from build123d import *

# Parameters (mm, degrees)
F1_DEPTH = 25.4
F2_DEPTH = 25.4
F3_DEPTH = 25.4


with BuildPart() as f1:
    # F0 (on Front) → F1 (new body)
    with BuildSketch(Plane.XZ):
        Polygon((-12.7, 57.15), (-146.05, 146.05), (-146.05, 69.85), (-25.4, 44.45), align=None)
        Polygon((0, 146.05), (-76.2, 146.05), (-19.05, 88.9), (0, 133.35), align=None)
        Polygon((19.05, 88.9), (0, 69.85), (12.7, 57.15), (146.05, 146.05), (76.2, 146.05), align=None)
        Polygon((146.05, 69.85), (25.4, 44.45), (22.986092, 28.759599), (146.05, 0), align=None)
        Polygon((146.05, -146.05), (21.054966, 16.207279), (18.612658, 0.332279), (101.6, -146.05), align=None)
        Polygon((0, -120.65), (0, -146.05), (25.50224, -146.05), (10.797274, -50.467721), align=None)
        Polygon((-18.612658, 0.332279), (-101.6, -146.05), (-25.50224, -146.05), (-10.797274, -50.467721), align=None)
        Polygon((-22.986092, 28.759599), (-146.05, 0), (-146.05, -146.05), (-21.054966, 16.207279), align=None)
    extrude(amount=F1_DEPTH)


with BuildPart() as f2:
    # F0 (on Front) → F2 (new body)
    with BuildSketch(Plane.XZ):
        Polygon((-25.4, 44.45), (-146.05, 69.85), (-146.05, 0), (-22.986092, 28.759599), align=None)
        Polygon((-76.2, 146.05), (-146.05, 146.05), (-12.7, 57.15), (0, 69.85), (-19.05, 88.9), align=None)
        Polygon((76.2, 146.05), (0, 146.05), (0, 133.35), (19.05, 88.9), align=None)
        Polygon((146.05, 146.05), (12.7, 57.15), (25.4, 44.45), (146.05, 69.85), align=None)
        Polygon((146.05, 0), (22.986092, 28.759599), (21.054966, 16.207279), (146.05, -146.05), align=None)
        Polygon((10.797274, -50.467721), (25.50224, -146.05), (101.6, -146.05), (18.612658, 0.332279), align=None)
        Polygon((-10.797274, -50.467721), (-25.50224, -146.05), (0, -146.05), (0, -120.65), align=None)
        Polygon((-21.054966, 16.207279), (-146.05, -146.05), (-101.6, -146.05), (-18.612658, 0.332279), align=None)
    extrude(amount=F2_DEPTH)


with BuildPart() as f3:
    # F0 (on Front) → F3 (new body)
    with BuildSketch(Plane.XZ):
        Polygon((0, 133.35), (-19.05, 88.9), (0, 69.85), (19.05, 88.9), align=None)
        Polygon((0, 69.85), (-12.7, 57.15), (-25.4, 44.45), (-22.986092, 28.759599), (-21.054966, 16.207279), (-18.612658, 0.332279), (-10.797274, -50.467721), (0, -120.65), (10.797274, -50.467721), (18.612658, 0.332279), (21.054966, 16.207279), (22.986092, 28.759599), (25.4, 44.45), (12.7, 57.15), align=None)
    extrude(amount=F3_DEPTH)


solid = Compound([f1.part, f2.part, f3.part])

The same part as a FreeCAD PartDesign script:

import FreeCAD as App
import Part
import Sketcher
from FreeCAD import Vector
Q = App.Units.Quantity


def add_polygon(sketch, points):
    """Adds a closed chain of lines whose ends are joined by coincident constraints."""
    first, n = sketch.GeometryCount, len(points)
    for a, b in zip(points, points[1:] + points[:1]):
        sketch.addGeometry(Part.LineSegment(App.Vector(*a, 0), App.Vector(*b, 0)), False)
    for i in range(n):
        sketch.addConstraint(Sketcher.Constraint("Coincident", first + i, 2, first + (i + 1) % n, 1))

doc = App.newDocument("Part")
body = doc.addObject("PartDesign::Body", "Body")
body.AllowCompound = True

sketch1 = body.newObject("Sketcher::SketchObject", "Sketch")
sketch1.AttachmentSupport = (doc.getObject("XZ_Plane"), [""])
sketch1.MapMode = "FlatFace"
add_polygon(sketch1, [(-13, 57), (-146, 146), (-146, 70), (-25, 44)])
add_polygon(sketch1, [(0, 146), (-76, 146), (-19, 89), (0, 133)])
add_polygon(sketch1, [(0, 70), (13, 57), (146, 146), (76, 146)])
add_polygon(sketch1, [(146, 70), (25, 44), (23, 29), (146, 0)])
add_polygon(sketch1, [(146, -146), (21, 16), (19, 0), (102, -146)])
add_polygon(sketch1, [(0, -121), (0, -146), (26, -146), (11, -50)])
add_polygon(sketch1, [(-19, 0), (-102, -146), (-26, -146), (-11, -50)])
add_polygon(sketch1, [(-23, 29), (-146, 0), (-146, -146), (-21, 16)])
sketch1.addConstraint(Sketcher.Constraint("Vertical", 1))
sketch1.addConstraint(Sketcher.Constraint("Horizontal", 4))
sketch1.addConstraint(Sketcher.Constraint("Vertical", 7))
sketch1.addConstraint(Sketcher.Constraint("Horizontal", 10))
sketch1.addConstraint(Sketcher.Constraint("Vertical", 15))
sketch1.addConstraint(Sketcher.Constraint("Horizontal", 19))
sketch1.addConstraint(Sketcher.Constraint("Vertical", 20))
sketch1.addConstraint(Sketcher.Constraint("Horizontal", 21))
sketch1.addConstraint(Sketcher.Constraint("Horizontal", 25))
sketch1.addConstraint(Sketcher.Constraint("Vertical", 29))
sketch1.addConstraint(Sketcher.Constraint("Symmetric", 0, 2, 19, 2, -1, 1))
sketch1.addConstraint(Sketcher.Constraint("Symmetric", 7, 2, 20, 2, -1, 1))
sketch1.addConstraint(Sketcher.Constraint("Symmetric", 14, 2, 28, 2, -1, 1))
sketch1.addConstraint(Sketcher.Constraint("Symmetric", 9, 2, 29, 2, -1, 1))
sketch1.addConstraint(Sketcher.Constraint("Symmetric", 3, 2, 8, 2, -2))
sketch1.addConstraint(Sketcher.Constraint("Symmetric", 0, 2, 9, 2, -2))
sketch1.addConstraint(Sketcher.Constraint("Symmetric", 4, 2, 10, 2, -2))
sketch1.addConstraint(Sketcher.Constraint("Symmetric", 2, 2, 12, 2, -2))
sketch1.addConstraint(Sketcher.Constraint("Symmetric", 18, 2, 24, 2, -2))
sketch1.addConstraint(Sketcher.Constraint("Symmetric", 22, 2, 26, 2, -2))
sketch1.addConstraint(Sketcher.Constraint("Symmetric", 17, 2, 27, 2, -2))
sketch1.addConstraint(Sketcher.Constraint("Symmetric", 16, 2, 30, 2, -2))
sketch1.addConstraint(Sketcher.Constraint("Symmetric", 13, 2, 31, 2, -2))
sketch1.addConstraint(Sketcher.Constraint("PointOnObject", 6, 2, -2))
sketch1.addConstraint(Sketcher.Constraint("PointOnObject", 11, 2, -2))
sketch1.addConstraint(Sketcher.Constraint("PointOnObject", 14, 2, -1))
sketch1.addConstraint(Sketcher.Constraint("Perpendicular", 3, 5))
sketch1.addConstraint(Sketcher.Constraint("Parallel", 5, 8))
sketch1.addConstraint(Sketcher.Constraint("Perpendicular", 8, 11))
sketch1.addConstraint(Sketcher.Constraint("Parallel", 13, 17))
sketch1.addConstraint(Sketcher.Constraint("Parallel", 17, 23))
sketch1.addConstraint(Sketcher.Constraint("Parallel", 23, 26))
sketch1.addConstraint(Sketcher.Constraint("Parallel", 22, 27))
sketch1.addConstraint(Sketcher.Constraint("Parallel", 27, 31))
sketch1.addConstraint(Sketcher.Constraint("Horizontal", 1, 2, 11, 2))
sketch1.addConstraint(Sketcher.Constraint("Horizontal", 11, 2, 15, 2))
sketch1.addConstraint(Sketcher.Constraint("Equal", 4, 1))
sketch1.addConstraint(Sketcher.Constraint("Equal", 10, 15))
sketch1.addConstraint(Sketcher.Constraint("Equal", 3, 8))
sketch1.addConstraint(Sketcher.Constraint("Equal", 22, 26))
sketch1.addConstraint(Sketcher.Constraint("DistanceX", 4, 2, 4, 1, Q("3 in")))
sketch1.addConstraint(Sketcher.Constraint("DistanceY", 20, 2, 20, 1, Q("1 in")))
sketch1.addConstraint(Sketcher.Constraint("DistanceY", 7, 1, 7, 2, Q("0.5 in")))
sketch1.addConstraint(Sketcher.Constraint("DistanceX", 2, 2, -1, 1, Q("1 in")))
sketch1.addConstraint(Sketcher.Constraint("DistanceX", -1, 1, 18, 2, Q("4 in")))
sketch1.addConstraint(Sketcher.Constraint("DistanceX", 1, 2, 5, 2, Q("5 in")))
sketch1.addConstraint(Sketcher.Constraint("DistanceY", 22, 2, 17, 2, Q("2 in")))
sketch1.addConstraint(Sketcher.Constraint("Distance", 31, Q("0.5 in")))
sketch1.addConstraint(Sketcher.Constraint("DistanceX", 10, 2, 10, 1, Q("2.75 in")))
sketch1.addConstraint(Sketcher.Constraint("Distance", 13, Q("0.625 in")))
sketch1.addConstraint(Sketcher.Constraint("DistanceY", 17, 2, 16, 2, Q("0.625 in")))
pad1 = body.newObject("PartDesign::Pad", "Pad")
pad1.Profile = sketch1
pad1.Length = Q("1 in")
body2 = doc.addObject("PartDesign::Body", "Body001")
body2.AllowCompound = True

sketch2 = body2.newObject("Sketcher::SketchObject", "Sketch001")
sketch2.AttachmentSupport = (doc.getObject("XZ_Plane001"), [""])
sketch2.MapMode = "FlatFace"
add_polygon(sketch2, [(-25, 44), (-146, 70), (-146, 0), (-23, 29)])
add_polygon(sketch2, [(-76, 146), (-146, 146), (-13, 57), (0, 70)])
add_polygon(sketch2, [(76, 146), (0, 146), (0, 133), (19, 89)])
add_polygon(sketch2, [(146, 146), (13, 57), (25, 44), (146, 70)])
add_polygon(sketch2, [(146, 0), (23, 29), (21, 16), (146, -146)])
add_polygon(sketch2, [(11, -50), (26, -146), (102, -146), (19, 0)])
add_polygon(sketch2, [(-11, -50), (-26, -146), (0, -146), (0, -121)])
add_polygon(sketch2, [(-21, 16), (-146, -146), (-102, -146), (-19, 0)])
sketch2.addConstraint(Sketcher.Constraint("Vertical", 1))
sketch2.addConstraint(Sketcher.Constraint("Horizontal", 4))
sketch2.addConstraint(Sketcher.Constraint("Horizontal", 8))
sketch2.addConstraint(Sketcher.Constraint("Vertical", 9))
sketch2.addConstraint(Sketcher.Constraint("Vertical", 15))
sketch2.addConstraint(Sketcher.Constraint("Vertical", 19))
sketch2.addConstraint(Sketcher.Constraint("Horizontal", 21))
sketch2.addConstraint(Sketcher.Constraint("Horizontal", 25))
sketch2.addConstraint(Sketcher.Constraint("Vertical", 26))
sketch2.addConstraint(Sketcher.Constraint("Horizontal", 29))
sketch2.addConstraint(Sketcher.Constraint("Symmetric", 4, 2, 18, 2, -1, 1))
sketch2.addConstraint(Sketcher.Constraint("Symmetric", 1, 2, 19, 2, -1, 1))
sketch2.addConstraint(Sketcher.Constraint("Symmetric", 8, 2, 25, 2, -1, 1))
sketch2.addConstraint(Sketcher.Constraint("Symmetric", 15, 2, 28, 2, -1, 1))
sketch2.addConstraint(Sketcher.Constraint("Symmetric", 7, 2, 11, 2, -2))
sketch2.addConstraint(Sketcher.Constraint("Symmetric", 5, 2, 12, 2, -2))
sketch2.addConstraint(Sketcher.Constraint("Symmetric", 3, 2, 13, 2, -2))
sketch2.addConstraint(Sketcher.Constraint("Symmetric", 0, 2, 14, 2, -2))
sketch2.addConstraint(Sketcher.Constraint("Symmetric", 2, 2, 16, 2, -2))
sketch2.addConstraint(Sketcher.Constraint("Symmetric", 20, 2, 24, 2, -2))
sketch2.addConstraint(Sketcher.Constraint("Symmetric", 23, 2, 27, 2, -2))
sketch2.addConstraint(Sketcher.Constraint("Symmetric", 21, 2, 29, 2, -2))
sketch2.addConstraint(Sketcher.Constraint("Symmetric", 22, 2, 30, 2, -2))
sketch2.addConstraint(Sketcher.Constraint("Symmetric", 17, 2, 31, 2, -2))
sketch2.addConstraint(Sketcher.Constraint("PointOnObject", 1, 2, -1))
sketch2.addConstraint(Sketcher.Constraint("PointOnObject", 6, 2, -2))
sketch2.addConstraint(Sketcher.Constraint("PointOnObject", 8, 2, -2))
sketch2.addConstraint(Sketcher.Constraint("Perpendicular", 6, 7))
sketch2.addConstraint(Sketcher.Constraint("Perpendicular", 7, 11))
sketch2.addConstraint(Sketcher.Constraint("Perpendicular", 11, 13))
sketch2.addConstraint(Sketcher.Constraint("Parallel", 3, 20))
sketch2.addConstraint(Sketcher.Constraint("Parallel", 17, 23))
sketch2.addConstraint(Sketcher.Constraint("Parallel", 23, 24))
sketch2.addConstraint(Sketcher.Constraint("Parallel", 20, 27))
sketch2.addConstraint(Sketcher.Constraint("Parallel", 27, 31))
sketch2.addConstraint(Sketcher.Constraint("Horizontal", 0, 2, 6, 2))
sketch2.addConstraint(Sketcher.Constraint("Equal", 4, 1))
sketch2.addConstraint(Sketcher.Constraint("Equal", 8, 15))
sketch2.addConstraint(Sketcher.Constraint("Equal", 6, 13))
sketch2.addConstraint(Sketcher.Constraint("DistanceX", 8, 2, 8, 1, Q("3 in")))
sketch2.addConstraint(Sketcher.Constraint("DistanceY", 26, 1, 26, 2, Q("1 in")))
sketch2.addConstraint(Sketcher.Constraint("DistanceY", 9, 2, 9, 1, Q("0.5 in")))
sketch2.addConstraint(Sketcher.Constraint("DistanceX", 3, 2, -1, 1, Q("1 in")))
sketch2.addConstraint(Sketcher.Constraint("DistanceX", -1, 1, 21, 2, Q("4 in")))
sketch2.addConstraint(Sketcher.Constraint("DistanceX", 10, 2, 14, 2, Q("5 in")))
sketch2.addConstraint(Sketcher.Constraint("DistanceY", 18, 2, 12, 2, Q("8 in")))
sketch2.addConstraint(Sketcher.Constraint("DistanceY", 23, 2, 22, 2, Q("2 in")))
sketch2.addConstraint(Sketcher.Constraint("Distance", 17, Q("0.5 in")))
sketch2.addConstraint(Sketcher.Constraint("Distance", 3, Q("0.625 in")))
sketch2.addConstraint(Sketcher.Constraint("DistanceY", 22, 2, 17, 2, Q("0.625 in")))
pad2 = body2.newObject("PartDesign::Pad", "Pad001")
pad2.Profile = sketch2
pad2.Length = Q("1 in")
body3 = doc.addObject("PartDesign::Body", "Body002")
body3.AllowCompound = True

sketch3 = body3.newObject("Sketcher::SketchObject", "Sketch002")
sketch3.AttachmentSupport = (doc.getObject("XZ_Plane002"), [""])
sketch3.MapMode = "FlatFace"
add_polygon(sketch3, [(0, 133), (-19, 89), (0, 70), (19, 89)])
add_polygon(sketch3, [(0, 70), (-25, 44), (-23, 29), (-21, 16), (-19, 0), (-11, -50), (0, -121), (11, -50), (19, 0), (21, 16), (23, 29), (25, 44)])
sketch3.addConstraint(Sketcher.Constraint("Coincident", 15, 2, 1, 2))
sketch3.addConstraint(Sketcher.Constraint("Symmetric", 0, 2, 2, 2, -2))
sketch3.addConstraint(Sketcher.Constraint("Symmetric", 8, 2, 10, 2, -2))
sketch3.addConstraint(Sketcher.Constraint("Symmetric", 7, 2, 11, 2, -2))
sketch3.addConstraint(Sketcher.Constraint("Symmetric", 6, 2, 12, 2, -2))
sketch3.addConstraint(Sketcher.Constraint("Symmetric", 5, 2, 13, 2, -2))
sketch3.addConstraint(Sketcher.Constraint("Symmetric", 4, 2, 14, 2, -2))
sketch3.addConstraint(Sketcher.Constraint("PointOnObject", 1, 2, -2))
sketch3.addConstraint(Sketcher.Constraint("PointOnObject", 3, 2, -2))
sketch3.addConstraint(Sketcher.Constraint("PointOnObject", 9, 2, -2))
sketch3.addConstraint(Sketcher.Constraint("Perpendicular", 1, 2))
sketch3.addConstraint(Sketcher.Constraint("Parallel", 2, 4))
sketch3.addConstraint(Sketcher.Constraint("Parallel", 5, 6))
sketch3.addConstraint(Sketcher.Constraint("Parallel", 6, 7))
sketch3.addConstraint(Sketcher.Constraint("Parallel", 7, 8))
sketch3.addConstraint(Sketcher.Constraint("Parallel", 8, 9))
sketch3.addConstraint(Sketcher.Constraint("DistanceX", 4, 2, -1, 1, Q("1 in")))
sketch3.addConstraint(Sketcher.Constraint("DistanceY", 8, 2, 7, 2, Q("2 in")))
sketch3.addConstraint(Sketcher.Constraint("Distance", 6, Q("0.5 in")))
sketch3.addConstraint(Sketcher.Constraint("DistanceY", -1, 1, 0, 2, Q("3.5 in")))
sketch3.addConstraint(Sketcher.Constraint("DistanceX", 0, 2, 2, 2, Q("1.5 in")))
sketch3.addConstraint(Sketcher.Constraint("DistanceY", 1, 2, 3, 2, Q("2.5 in")))
sketch3.addConstraint(Sketcher.Constraint("DistanceY", 9, 2, 4, 2, Q("6.5 in")))
sketch3.addConstraint(Sketcher.Constraint("Distance", 5, Q("0.625 in")))
sketch3.addConstraint(Sketcher.Constraint("DistanceY", 7, 2, 6, 2, Q("0.625 in")))
pad3 = body3.newObject("PartDesign::Pad", "Pad002")
pad3.Profile = sketch3
pad3.Length = Q("1 in")

doc.recompute()
